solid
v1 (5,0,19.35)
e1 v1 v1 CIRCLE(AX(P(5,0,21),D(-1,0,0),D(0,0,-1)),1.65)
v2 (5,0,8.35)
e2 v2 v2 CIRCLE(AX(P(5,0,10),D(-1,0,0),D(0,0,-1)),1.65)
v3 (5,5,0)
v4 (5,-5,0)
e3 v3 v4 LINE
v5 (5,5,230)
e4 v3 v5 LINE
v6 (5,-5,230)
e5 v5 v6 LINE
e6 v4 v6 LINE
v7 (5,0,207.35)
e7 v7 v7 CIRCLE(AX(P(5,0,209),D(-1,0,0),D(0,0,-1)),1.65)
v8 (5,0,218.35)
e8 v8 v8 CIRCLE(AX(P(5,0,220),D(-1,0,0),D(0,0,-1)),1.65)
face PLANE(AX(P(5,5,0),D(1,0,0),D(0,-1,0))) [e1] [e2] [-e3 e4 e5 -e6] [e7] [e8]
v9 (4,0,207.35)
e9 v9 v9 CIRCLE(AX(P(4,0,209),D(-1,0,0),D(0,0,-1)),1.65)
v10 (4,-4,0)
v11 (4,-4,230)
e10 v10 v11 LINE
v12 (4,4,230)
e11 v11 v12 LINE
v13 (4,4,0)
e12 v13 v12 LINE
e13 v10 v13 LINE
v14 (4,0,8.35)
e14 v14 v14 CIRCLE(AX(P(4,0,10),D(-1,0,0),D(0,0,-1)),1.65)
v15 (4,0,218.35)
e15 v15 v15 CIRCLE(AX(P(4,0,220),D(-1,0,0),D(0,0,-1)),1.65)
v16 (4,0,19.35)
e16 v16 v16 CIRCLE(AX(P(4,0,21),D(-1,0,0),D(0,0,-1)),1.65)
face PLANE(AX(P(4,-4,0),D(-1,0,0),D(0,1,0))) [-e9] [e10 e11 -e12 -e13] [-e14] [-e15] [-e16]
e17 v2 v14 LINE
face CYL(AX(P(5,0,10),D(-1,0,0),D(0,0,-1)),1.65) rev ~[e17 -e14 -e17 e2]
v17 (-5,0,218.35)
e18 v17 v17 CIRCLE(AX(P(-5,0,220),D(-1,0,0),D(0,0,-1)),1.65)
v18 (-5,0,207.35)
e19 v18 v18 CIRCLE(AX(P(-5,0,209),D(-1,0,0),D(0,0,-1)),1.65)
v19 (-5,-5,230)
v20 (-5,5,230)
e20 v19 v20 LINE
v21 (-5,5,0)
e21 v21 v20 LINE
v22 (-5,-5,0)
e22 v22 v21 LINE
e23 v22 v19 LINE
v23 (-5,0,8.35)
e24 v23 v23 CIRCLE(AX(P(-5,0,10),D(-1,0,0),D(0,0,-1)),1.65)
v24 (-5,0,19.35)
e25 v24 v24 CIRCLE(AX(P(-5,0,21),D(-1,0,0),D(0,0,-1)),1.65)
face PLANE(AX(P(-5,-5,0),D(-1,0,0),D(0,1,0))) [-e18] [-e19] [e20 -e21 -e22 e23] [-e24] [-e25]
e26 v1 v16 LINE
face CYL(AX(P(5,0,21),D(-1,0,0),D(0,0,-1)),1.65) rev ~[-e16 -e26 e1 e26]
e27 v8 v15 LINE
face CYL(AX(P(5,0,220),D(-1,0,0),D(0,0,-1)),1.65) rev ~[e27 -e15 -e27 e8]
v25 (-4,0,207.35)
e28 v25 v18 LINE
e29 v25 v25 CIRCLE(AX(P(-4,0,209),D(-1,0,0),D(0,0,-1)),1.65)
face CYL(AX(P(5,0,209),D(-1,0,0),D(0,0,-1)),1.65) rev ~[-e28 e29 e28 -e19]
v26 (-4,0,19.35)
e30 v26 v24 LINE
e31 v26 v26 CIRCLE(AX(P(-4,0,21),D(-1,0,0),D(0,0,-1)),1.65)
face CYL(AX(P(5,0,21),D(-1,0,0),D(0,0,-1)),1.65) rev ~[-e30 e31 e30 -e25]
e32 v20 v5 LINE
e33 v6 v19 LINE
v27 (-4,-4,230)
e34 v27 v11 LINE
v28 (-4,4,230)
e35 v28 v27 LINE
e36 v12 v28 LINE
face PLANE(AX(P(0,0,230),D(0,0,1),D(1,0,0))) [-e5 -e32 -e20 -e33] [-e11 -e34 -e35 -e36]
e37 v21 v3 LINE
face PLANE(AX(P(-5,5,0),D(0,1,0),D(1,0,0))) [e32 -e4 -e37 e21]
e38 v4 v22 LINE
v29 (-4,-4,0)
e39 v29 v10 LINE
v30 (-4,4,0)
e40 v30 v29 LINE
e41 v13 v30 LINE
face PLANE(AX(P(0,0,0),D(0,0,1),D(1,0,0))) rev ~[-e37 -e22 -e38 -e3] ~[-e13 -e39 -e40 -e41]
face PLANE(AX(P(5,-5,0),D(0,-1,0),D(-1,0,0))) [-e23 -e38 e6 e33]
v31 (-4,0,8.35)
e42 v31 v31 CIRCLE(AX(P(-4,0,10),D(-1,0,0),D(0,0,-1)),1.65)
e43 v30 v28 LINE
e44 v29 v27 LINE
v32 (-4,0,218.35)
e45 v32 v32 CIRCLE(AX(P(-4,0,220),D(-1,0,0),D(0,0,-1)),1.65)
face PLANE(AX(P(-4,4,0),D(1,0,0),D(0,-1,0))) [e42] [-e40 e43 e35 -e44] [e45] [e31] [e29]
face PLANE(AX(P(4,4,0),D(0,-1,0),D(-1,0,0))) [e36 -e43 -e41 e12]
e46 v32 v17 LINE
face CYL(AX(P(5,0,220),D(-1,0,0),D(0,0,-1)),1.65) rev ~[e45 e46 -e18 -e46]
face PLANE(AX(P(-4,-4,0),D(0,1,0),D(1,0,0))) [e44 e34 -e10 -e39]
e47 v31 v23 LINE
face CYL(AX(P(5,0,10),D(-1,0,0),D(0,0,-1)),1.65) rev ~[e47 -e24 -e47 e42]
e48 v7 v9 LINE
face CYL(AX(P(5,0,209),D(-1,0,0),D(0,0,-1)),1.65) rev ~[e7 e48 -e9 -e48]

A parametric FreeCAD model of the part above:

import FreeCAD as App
import Part
import Sketcher
from FreeCAD import Vector


def add_polygon(sketch, points):
    """Adds a closed chain of lines whose ends are joined by coincident constraints."""
    first, n = sketch.GeometryCount, len(points)
    for a, b in zip(points, points[1:] + points[:1]):
        sketch.addGeometry(Part.LineSegment(App.Vector(*a, 0), App.Vector(*b, 0)), False)
    for i in range(n):
        sketch.addConstraint(Sketcher.Constraint("Coincident", first + i, 2, first + (i + 1) % n, 1))

doc = App.newDocument("Part")
params = doc.addObject("Spreadsheet::Sheet", "Params")
for row, (alias, value) in enumerate([
    ("sketch1_width", "10 mm"),
    ("pad1_length", "230 mm"),
    ("sketch2_diameter", "3.3 mm"),
    ("hole_diameter", "3.3 mm"),
], start=1):
    params.set(f"A{row}", alias)
    params.set(f"B{row}", "=" + value)
    params.setAlias(f"B{row}", alias)

body = doc.addObject("PartDesign::Body", "Body")

# Sketch on XY plane
sketch1 = body.newObject("Sketcher::SketchObject", "Sketch")
sketch1.AttachmentSupport = (doc.getObject("XY_Plane"), [""])
sketch1.MapMode = "FlatFace"
add_polygon(sketch1, [(-5, -5), (5, -5), (5, 5), (-5, 5)])  # lines 0-3
add_polygon(sketch1, [(-4, 4), (4, 4), (4, -4), (-4, -4)])  # lines 4-7
sketch1.addConstraint(Sketcher.Constraint("Horizontal", 0))
sketch1.addConstraint(Sketcher.Constraint("Vertical", 1))
sketch1.addConstraint(Sketcher.Constraint("Horizontal", 2))
sketch1.addConstraint(Sketcher.Constraint("Vertical", 3))
sketch1.addConstraint(Sketcher.Constraint("Horizontal", 4))
sketch1.addConstraint(Sketcher.Constraint("Vertical", 5))
sketch1.addConstraint(Sketcher.Constraint("Horizontal", 6))
sketch1.addConstraint(Sketcher.Constraint("Vertical", 7))
sketch1.addConstraint(Sketcher.Constraint("Symmetric", 0, 2, 2, 2, -1, 1))
sketch1.addConstraint(Sketcher.Constraint("Symmetric", 4, 2, 6, 2, -1, 1))
sketch1.addConstraint(Sketcher.Constraint("Equal", 2, 1))
sketch1.addConstraint(Sketcher.Constraint("Equal", 6, 5))
sketch1.addConstraint(Sketcher.Constraint("DistanceX", 0, 1, 0, 2, 10.0))
sketch1.addConstraint(Sketcher.Constraint("DistanceX", 4, 2, 1, 2, 1.0))
sketch1.setExpression("Constraints[20]", "Params.sketch1_width")
pad1 = body.newObject("PartDesign::Pad", "Pad")
pad1.Profile = sketch1
pad1.setExpression("Length", "Params.pad1_length")

# Sketch on YZ plane
sketch2 = body.newObject("Sketcher::SketchObject", "Sketch001")
sketch2.AttachmentSupport = (doc.getObject("YZ_Plane"), [""])
sketch2.MapMode = "FlatFace"
sketch2.AttachmentOffset = App.Placement(Vector(0, 0, 5), App.Rotation())
sketch2.addGeometry(Part.Circle(Vector(0, 220, 0), Vector(0, 0, 1), 1.6), False)
sketch2.addGeometry(Part.Circle(Vector(0, 10, 0), Vector(0, 0, 1), 1.6), False)
sketch2.addGeometry(Part.Circle(Vector(0, 209, 0), Vector(0, 0, 1), 1.6), False)
sketch2.addGeometry(Part.Circle(Vector(0, 21, 0), Vector(0, 0, 1), 1.6), False)
sketch2.addConstraint(Sketcher.Constraint("Equal", 0, 1))
sketch2.addConstraint(Sketcher.Constraint("Equal", 1, 2))
sketch2.addConstraint(Sketcher.Constraint("Equal", 2, 3))
sketch2.addConstraint(Sketcher.Constraint("PointOnObject", 0, 3, -2))
sketch2.addConstraint(Sketcher.Constraint("PointOnObject", 1, 3, -2))
sketch2.addConstraint(Sketcher.Constraint("PointOnObject", 2, 3, -2))
sketch2.addConstraint(Sketcher.Constraint("PointOnObject", 3, 3, -2))
sketch2.addConstraint(Sketcher.Constraint("Diameter", 0, 3.3))
sketch2.addConstraint(Sketcher.Constraint("DistanceY", -1, 1, 0, 3, 220.0))
sketch2.addConstraint(Sketcher.Constraint("DistanceY", -1, 1, 1, 3, 10.0))
sketch2.addConstraint(Sketcher.Constraint("DistanceY", -1, 1, 2, 3, 209.0))
sketch2.addConstraint(Sketcher.Constraint("DistanceY", -1, 1, 3, 3, 21.0))
sketch2.setExpression("Constraints[7]", "Params.sketch2_diameter")
doc.recompute()
hole = body.newObject("PartDesign::Hole", "Hole")
hole.Profile = sketch2
hole.ThreadType = "None"
hole.setExpression("Diameter", "Params.hole_diameter")
hole.DepthType = "ThroughAll"

doc.recompute()
